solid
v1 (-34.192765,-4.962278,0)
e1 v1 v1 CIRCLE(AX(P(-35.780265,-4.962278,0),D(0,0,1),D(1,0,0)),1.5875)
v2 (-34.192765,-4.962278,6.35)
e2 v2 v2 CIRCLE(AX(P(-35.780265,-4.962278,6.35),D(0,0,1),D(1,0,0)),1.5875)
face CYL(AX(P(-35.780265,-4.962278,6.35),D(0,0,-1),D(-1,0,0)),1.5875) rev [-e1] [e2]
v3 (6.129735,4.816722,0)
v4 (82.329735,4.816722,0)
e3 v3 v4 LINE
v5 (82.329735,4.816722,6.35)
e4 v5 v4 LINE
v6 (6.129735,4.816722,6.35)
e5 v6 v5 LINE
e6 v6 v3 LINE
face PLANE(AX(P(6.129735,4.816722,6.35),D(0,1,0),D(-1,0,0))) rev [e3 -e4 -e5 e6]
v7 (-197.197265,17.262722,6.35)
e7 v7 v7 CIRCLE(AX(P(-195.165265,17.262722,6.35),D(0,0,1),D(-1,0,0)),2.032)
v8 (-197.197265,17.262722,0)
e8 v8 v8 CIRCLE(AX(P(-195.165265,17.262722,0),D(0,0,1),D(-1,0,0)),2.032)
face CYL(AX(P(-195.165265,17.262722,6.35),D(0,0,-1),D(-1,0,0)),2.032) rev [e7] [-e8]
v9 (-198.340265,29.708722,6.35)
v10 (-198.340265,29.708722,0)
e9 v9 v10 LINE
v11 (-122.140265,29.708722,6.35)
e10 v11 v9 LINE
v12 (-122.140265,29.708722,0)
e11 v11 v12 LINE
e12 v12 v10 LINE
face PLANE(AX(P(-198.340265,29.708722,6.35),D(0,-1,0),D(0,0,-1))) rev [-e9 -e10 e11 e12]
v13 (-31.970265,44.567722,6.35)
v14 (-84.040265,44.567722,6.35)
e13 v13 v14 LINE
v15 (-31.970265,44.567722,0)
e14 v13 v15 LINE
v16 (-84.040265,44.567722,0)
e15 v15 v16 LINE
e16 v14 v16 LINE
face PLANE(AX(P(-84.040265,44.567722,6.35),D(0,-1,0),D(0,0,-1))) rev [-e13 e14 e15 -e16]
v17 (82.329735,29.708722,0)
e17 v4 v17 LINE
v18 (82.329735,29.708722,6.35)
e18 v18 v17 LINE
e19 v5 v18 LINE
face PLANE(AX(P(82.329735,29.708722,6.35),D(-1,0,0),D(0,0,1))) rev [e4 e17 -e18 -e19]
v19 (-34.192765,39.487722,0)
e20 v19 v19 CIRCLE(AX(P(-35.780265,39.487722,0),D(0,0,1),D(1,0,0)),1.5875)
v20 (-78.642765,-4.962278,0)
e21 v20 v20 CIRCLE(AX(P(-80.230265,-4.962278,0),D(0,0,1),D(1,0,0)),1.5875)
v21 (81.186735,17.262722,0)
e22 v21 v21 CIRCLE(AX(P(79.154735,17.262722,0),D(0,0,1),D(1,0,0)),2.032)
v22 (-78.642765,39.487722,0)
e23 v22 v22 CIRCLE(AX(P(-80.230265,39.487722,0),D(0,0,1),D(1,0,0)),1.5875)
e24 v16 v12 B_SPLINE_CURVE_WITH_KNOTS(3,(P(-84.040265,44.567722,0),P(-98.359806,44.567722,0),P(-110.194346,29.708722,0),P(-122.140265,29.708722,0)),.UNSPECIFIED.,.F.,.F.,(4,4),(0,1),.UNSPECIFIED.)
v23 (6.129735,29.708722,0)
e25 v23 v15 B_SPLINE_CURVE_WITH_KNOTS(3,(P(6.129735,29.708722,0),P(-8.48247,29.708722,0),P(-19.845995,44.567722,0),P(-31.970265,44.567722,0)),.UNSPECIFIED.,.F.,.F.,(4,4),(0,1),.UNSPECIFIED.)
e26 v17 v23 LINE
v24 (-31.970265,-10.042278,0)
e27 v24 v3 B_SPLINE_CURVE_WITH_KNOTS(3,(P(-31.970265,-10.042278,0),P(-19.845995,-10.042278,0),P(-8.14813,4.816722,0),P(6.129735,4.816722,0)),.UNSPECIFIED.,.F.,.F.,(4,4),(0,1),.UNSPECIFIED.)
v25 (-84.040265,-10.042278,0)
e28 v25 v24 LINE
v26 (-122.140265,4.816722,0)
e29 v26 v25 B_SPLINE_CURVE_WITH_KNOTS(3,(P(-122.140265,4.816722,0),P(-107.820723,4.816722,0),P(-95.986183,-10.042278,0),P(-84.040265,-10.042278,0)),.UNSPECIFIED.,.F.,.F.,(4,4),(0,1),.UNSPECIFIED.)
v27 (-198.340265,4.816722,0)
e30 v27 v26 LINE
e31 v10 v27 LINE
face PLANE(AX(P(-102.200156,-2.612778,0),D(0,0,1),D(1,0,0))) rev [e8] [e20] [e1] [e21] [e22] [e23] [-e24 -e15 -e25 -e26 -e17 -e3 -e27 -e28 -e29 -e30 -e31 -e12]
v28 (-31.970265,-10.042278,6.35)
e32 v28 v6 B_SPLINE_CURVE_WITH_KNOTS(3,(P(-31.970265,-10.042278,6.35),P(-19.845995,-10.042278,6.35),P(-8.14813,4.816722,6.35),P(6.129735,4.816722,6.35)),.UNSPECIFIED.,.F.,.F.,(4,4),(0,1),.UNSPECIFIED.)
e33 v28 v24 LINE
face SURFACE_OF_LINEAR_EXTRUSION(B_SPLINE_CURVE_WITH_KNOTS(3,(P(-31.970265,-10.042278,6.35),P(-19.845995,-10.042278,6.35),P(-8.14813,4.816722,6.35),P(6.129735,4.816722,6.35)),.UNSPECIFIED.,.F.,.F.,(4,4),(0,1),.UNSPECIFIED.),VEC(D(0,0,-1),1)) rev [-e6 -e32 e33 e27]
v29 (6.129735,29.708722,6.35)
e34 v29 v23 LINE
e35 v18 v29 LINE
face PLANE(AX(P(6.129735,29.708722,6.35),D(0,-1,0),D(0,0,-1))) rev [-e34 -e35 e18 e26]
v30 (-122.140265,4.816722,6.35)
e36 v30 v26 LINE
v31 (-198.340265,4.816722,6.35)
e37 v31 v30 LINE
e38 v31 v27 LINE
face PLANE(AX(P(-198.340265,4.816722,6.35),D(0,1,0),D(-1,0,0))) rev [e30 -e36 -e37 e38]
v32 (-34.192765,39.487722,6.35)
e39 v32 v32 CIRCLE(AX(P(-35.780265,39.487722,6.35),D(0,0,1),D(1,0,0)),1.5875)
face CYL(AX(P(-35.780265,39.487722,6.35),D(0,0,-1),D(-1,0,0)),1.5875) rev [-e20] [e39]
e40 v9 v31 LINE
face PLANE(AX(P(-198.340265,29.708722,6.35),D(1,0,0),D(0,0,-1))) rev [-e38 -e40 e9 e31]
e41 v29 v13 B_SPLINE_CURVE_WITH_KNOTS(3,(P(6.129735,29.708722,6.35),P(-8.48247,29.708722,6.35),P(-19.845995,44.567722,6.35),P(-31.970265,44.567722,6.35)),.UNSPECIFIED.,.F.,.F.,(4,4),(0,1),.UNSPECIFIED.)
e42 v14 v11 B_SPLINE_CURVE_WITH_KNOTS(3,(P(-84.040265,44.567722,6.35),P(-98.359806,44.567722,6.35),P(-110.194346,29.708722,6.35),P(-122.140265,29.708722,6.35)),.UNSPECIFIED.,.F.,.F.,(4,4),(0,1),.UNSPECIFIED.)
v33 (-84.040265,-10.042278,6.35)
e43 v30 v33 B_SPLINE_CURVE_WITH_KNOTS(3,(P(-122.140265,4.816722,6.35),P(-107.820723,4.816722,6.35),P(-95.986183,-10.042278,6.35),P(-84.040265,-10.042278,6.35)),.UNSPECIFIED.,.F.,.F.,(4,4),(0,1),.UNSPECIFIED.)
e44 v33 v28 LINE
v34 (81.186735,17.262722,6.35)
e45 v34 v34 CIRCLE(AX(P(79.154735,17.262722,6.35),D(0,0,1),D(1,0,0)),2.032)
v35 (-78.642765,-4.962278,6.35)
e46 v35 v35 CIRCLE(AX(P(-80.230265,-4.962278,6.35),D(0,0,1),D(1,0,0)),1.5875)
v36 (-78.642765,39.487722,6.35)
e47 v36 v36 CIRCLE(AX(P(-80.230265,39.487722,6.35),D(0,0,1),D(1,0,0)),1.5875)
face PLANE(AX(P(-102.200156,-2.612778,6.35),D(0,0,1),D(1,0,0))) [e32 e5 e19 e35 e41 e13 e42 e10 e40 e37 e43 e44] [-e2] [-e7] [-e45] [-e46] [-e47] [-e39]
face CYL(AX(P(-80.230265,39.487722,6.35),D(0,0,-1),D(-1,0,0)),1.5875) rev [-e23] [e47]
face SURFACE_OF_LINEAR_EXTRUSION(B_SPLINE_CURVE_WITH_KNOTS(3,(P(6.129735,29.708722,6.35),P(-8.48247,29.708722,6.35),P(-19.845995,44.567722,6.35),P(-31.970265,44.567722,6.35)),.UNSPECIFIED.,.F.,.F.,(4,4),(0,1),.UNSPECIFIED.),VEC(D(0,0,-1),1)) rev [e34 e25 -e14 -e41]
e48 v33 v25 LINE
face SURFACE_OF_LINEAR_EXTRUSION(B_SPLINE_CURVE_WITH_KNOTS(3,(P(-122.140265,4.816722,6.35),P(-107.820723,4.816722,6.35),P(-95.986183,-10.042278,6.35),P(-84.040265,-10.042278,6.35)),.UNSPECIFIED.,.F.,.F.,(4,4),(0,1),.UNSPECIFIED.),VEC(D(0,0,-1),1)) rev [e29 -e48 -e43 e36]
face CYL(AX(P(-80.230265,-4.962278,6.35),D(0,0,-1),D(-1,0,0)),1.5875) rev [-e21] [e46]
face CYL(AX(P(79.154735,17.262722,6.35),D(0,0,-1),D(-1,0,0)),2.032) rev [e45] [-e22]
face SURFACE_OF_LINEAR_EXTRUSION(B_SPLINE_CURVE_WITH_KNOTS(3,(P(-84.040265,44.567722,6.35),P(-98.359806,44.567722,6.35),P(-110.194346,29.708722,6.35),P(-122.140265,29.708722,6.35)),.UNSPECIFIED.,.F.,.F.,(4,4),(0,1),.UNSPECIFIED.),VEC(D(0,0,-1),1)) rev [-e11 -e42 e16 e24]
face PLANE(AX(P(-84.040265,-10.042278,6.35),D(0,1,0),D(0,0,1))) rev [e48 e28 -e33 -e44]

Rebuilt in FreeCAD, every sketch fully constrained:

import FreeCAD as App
import Part
import Sketcher
Q = App.Units.Quantity

doc = App.newDocument("Part")
body = doc.addObject("PartDesign::Body", "Body")

sketch1 = body.newObject("Sketcher::SketchObject", "Sketch")
sketch1.AttachmentSupport = (doc.getObject("XY_Plane"), [""])
sketch1.MapMode = "FlatFace"
sketch1.addGeometry([
    Part.LineSegment(App.Vector(-122.140265, 29.708722, 0), App.Vector(-198.340265, 29.708722, 0)),
    Part.LineSegment(App.Vector(-198.340265, 29.708722, 0), App.Vector(-198.340265, 4.816722, 0)),
    Part.LineSegment(App.Vector(-198.340265, 4.816722, 0), App.Vector(-122.140265, 4.816722, 0)),
    Part.BSplineCurve([App.Vector(-84.040265, -10.042278, 0), App.Vector(-95.986183, -10.042278, 0), App.Vector(-107.820723, 4.816722, 0), App.Vector(-122.140265, 4.816722, 0)], [4, 4], [0, 1], False, 3, [1, 1, 1, 1], False),
    Part.LineSegment(App.Vector(-84.040265, -10.042278, 0), App.Vector(-31.970265, -10.042278, 0)),
    Part.BSplineCurve([App.Vector(-31.970265, -10.042278, 0), App.Vector(-19.845995, -10.042278, 0), App.Vector(-8.14813, 4.816722, 0), App.Vector(6.129735, 4.816722, 0)], [4, 4], [0, 1], False, 3, [1, 1, 1, 1], False),
    Part.LineSegment(App.Vector(6.129735, 4.816722, 0), App.Vector(82.329735, 4.816722, 0)),
    Part.LineSegment(App.Vector(82.329735, 4.816722, 0), App.Vector(82.329735, 29.708722, 0)),
    Part.LineSegment(App.Vector(82.329735, 29.708722, 0), App.Vector(6.129735, 29.708722, 0)),
    Part.BSplineCurve([App.Vector(-31.970265, 44.567722, 0), App.Vector(-19.845995, 44.567722, 0), App.Vector(-8.48247, 29.708722, 0), App.Vector(6.129735, 29.708722, 0)], [4, 4], [0, 1], False, 3, [1, 1, 1, 1], False),
    Part.LineSegment(App.Vector(-31.970265, 44.567722, 0), App.Vector(-84.040265, 44.567722, 0)),
    Part.BSplineCurve([App.Vector(-84.040265, 44.567722, 0), App.Vector(-98.359806, 44.567722, 0), App.Vector(-110.194346, 29.708722, 0), App.Vector(-122.140265, 29.708722, 0)], [4, 4], [0, 1], False, 3, [1, 1, 1, 1], False),
    Part.Circle(App.Vector(-35.780265, -4.962278, 0), App.Vector(0, 0, 1), 1.5875),
    Part.Circle(App.Vector(-80.230265, -4.962278, 0), App.Vector(0, 0, 1), 1.5875),
    Part.Circle(App.Vector(79.154735, 17.262722, 0), App.Vector(0, 0, 1), 2.032),
    Part.Circle(App.Vector(-35.780265, 39.487722, 0), App.Vector(0, 0, 1), 1.5875),
    Part.Circle(App.Vector(-195.165265, 17.262722, 0), App.Vector(0, 0, 1), 2.032),
    Part.Circle(App.Vector(-80.230265, 39.487722, 0), App.Vector(0, 0, 1), 1.5875),
], False)
sketch1.addConstraint([
    Sketcher.Constraint("Block", 3),
    Sketcher.Constraint("Block", 5),
    Sketcher.Constraint("Block", 9),
    Sketcher.Constraint("Block", 11),
    Sketcher.Constraint("Coincident", 0, 2, 1, 1),
    Sketcher.Constraint("Coincident", 1, 2, 2, 1),
    Sketcher.Constraint("Coincident", 2, 2, 3, 2),
    Sketcher.Constraint("Coincident", 3, 1, 4, 1),
    Sketcher.Constraint("Coincident", 4, 2, 5, 1),
    Sketcher.Constraint("Coincident", 5, 2, 6, 1),
    Sketcher.Constraint("Coincident", 6, 2, 7, 1),
    Sketcher.Constraint("Coincident", 7, 2, 8, 1),
    Sketcher.Constraint("Coincident", 8, 2, 9, 2),
    Sketcher.Constraint("Coincident", 9, 1, 10, 1),
    Sketcher.Constraint("Coincident", 10, 2, 11, 1),
    Sketcher.Constraint("Coincident", 11, 2, 0, 1),
    Sketcher.Constraint("Horizontal", 0),
    Sketcher.Constraint("Vertical", 1),
    Sketcher.Constraint("Horizontal", 2),
    Sketcher.Constraint("Horizontal", 6),
    Sketcher.Constraint("Vertical", 7),
    Sketcher.Constraint("Horizontal", 8),
    Sketcher.Constraint("Diameter", 14, Q("0.16 in")),
    Sketcher.Constraint("Diameter", 16, Q("0.16 in")),
    Sketcher.Constraint("DistanceX", 0, 2, 0, 1, Q("3 in")),
    Sketcher.Constraint("DistanceX", 6, 1, 6, 2, Q("3 in")),
    Sketcher.Constraint("Diameter", 12, Q("0.125 in")),
    Sketcher.Constraint("Diameter", 13, Q("0.125 in")),
    Sketcher.Constraint("Diameter", 15, Q("0.125 in")),
    Sketcher.Constraint("Diameter", 17, Q("0.125 in")),
    Sketcher.Constraint("DistanceX", 16, 3, 14, 3, Q("10.8 in")),
    Sketcher.Constraint("DistanceX", 0, 2, 15, 3, Q("6.4 in")),
    Sketcher.Constraint("DistanceX", 0, 2, 12, 3, Q("6.4 in")),
    Sketcher.Constraint("DistanceY", 4, 2, 12, 3, Q("0.2 in")),
    Sketcher.Constraint("DistanceX", 13, 3, 4, 2, Q("1.9 in")),
    Sketcher.Constraint("DistanceY", 4, 2, 13, 3, Q("0.2 in")),
    Sketcher.Constraint("DistanceX", 17, 3, 4, 2, Q("1.9 in")),
    Sketcher.Constraint("DistanceY", 17, 3, 10, 2, Q("0.2 in")),
    Sketcher.Constraint("DistanceY", 15, 3, 10, 2, Q("0.2 in")),
    Sketcher.Constraint("DistanceY", 16, 3, 0, 2, Q("0.49 in")),
    Sketcher.Constraint("DistanceY", 6, 2, 14, 3, Q("0.49 in")),
    Sketcher.Constraint("DistanceX", 12, 3, 14, 3, Q("4.525 in")),
])
pad1 = body.newObject("PartDesign::Pad", "Pad")
pad1.Profile = sketch1
pad1.Length = Q("0.25 in")

doc.recompute()
